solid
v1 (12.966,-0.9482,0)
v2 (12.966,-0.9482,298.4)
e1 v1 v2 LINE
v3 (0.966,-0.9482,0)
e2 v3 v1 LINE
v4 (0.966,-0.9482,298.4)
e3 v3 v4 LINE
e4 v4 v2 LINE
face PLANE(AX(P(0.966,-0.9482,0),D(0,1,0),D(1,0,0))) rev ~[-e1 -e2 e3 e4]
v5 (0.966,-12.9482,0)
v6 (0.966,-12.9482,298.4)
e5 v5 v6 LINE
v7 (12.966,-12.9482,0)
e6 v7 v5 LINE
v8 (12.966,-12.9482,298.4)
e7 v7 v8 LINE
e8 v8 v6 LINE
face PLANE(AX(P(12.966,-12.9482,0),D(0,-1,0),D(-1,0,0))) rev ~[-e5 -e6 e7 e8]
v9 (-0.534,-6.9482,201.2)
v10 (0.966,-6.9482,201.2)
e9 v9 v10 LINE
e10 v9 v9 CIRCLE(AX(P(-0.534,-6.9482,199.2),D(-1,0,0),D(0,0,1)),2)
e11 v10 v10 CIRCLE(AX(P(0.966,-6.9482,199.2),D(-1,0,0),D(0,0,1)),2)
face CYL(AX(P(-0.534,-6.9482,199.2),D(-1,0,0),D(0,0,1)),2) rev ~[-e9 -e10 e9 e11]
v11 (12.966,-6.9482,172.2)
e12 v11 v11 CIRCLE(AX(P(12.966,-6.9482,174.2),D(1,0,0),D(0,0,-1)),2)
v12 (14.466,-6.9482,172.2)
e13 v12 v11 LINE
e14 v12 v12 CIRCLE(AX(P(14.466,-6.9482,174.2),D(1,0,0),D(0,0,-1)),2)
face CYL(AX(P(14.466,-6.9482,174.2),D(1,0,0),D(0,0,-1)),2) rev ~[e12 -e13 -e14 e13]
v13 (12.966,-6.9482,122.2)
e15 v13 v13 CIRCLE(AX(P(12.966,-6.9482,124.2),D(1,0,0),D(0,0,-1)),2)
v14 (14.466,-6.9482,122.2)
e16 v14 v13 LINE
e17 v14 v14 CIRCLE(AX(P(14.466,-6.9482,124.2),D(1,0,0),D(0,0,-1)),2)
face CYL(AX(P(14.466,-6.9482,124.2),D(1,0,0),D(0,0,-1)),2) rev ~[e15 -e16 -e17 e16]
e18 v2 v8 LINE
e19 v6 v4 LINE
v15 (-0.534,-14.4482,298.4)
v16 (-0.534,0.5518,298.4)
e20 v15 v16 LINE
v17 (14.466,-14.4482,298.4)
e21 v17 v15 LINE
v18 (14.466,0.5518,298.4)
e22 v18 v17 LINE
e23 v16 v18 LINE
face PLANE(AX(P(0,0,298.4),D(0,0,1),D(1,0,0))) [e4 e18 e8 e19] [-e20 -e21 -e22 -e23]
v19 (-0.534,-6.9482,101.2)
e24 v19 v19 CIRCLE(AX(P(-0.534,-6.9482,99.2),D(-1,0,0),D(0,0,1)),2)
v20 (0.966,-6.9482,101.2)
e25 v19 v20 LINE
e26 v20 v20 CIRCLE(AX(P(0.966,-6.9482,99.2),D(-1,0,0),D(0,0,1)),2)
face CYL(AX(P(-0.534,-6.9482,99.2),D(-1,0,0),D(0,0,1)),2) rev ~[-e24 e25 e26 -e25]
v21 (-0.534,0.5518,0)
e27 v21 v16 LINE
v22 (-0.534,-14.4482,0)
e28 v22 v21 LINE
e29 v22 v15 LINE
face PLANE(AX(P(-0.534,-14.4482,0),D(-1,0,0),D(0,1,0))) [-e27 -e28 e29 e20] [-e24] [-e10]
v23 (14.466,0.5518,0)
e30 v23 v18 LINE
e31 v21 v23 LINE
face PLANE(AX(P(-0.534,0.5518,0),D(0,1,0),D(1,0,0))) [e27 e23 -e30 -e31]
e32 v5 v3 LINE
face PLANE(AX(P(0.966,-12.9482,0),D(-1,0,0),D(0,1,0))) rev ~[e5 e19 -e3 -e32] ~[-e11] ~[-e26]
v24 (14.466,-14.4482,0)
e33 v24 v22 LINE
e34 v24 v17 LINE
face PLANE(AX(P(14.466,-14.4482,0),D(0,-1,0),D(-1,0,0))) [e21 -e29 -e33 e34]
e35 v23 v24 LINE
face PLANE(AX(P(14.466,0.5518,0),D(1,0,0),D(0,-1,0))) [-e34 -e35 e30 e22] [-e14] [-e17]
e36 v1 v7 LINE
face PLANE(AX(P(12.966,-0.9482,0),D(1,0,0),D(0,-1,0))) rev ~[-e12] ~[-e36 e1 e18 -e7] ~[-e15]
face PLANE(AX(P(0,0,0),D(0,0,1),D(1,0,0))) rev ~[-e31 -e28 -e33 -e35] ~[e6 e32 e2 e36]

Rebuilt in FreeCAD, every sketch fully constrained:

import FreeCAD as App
import Part
import Sketcher
from FreeCAD import Vector


def add_polygon(sketch, points):
    """Adds a closed chain of lines whose ends are joined by coincident constraints."""
    first, n = sketch.GeometryCount, len(points)
    for a, b in zip(points, points[1:] + points[:1]):
        sketch.addGeometry(Part.LineSegment(App.Vector(*a, 0), App.Vector(*b, 0)), False)
    for i in range(n):
        sketch.addConstraint(Sketcher.Constraint("Coincident", first + i, 2, first + (i + 1) % n, 1))

doc = App.newDocument("Part")
body = doc.addObject("PartDesign::Body", "Body")

# Sketch on XY plane
sketch1 = doc.addObject("Sketcher::SketchObject", "Sketch")
body.addObject(sketch1)
sketch1.AttachmentSupport = (doc.XY_Plane, [""])
sketch1.MapMode = "FlatFace"
add_polygon(sketch1, [(14, 1), (-1, 1), (-1, -14), (14, -14)])  # lines 0-3
add_polygon(sketch1, [(1, -13), (1, -1), (13, -1), (13, -13)])  # lines 4-7
sketch1.addConstraint([
    Sketcher.Constraint("Horizontal", 0),
    Sketcher.Constraint("Vertical", 1),
    Sketcher.Constraint("Horizontal", 2),
    Sketcher.Constraint("Vertical", 3),
    Sketcher.Constraint("Vertical", 4),
    Sketcher.Constraint("Horizontal", 5),
    Sketcher.Constraint("Vertical", 6),
    Sketcher.Constraint("Horizontal", 7),
    Sketcher.Constraint("Equal", 2, 1),
    Sketcher.Constraint("Equal", 7, 4),
    Sketcher.Constraint("DistanceX", 0, 2, 0, 1, 15.0),
    Sketcher.Constraint("DistanceX", 0, 2, 4, 2, 1.5),
    Sketcher.Constraint("DistanceY", 4, 2, 0, 2, 1.5),
    Sketcher.Constraint("DistanceX", 5, 2, 3, 2, 1.5),
    Sketcher.Constraint("DistanceX", 0, 2, -1, 1, 0.534),
    Sketcher.Constraint("DistanceY", -1, 1, 0, 2, 0.5518),
])
pad1 = doc.addObject("PartDesign::Pad", "Pad")
body.addObject(pad1)
pad1.Profile = sketch1
pad1.Length = 298.4

# Sketch on YZ plane
sketch2 = doc.addObject("Sketcher::SketchObject", "Sketch001")
body.addObject(sketch2)
sketch2.AttachmentSupport = (doc.YZ_Plane, [""])
sketch2.MapMode = "FlatFace"
sketch2.AttachmentOffset = App.Placement(Vector(0, 0, 14.466), App.Rotation())
sketch2.addGeometry([
    Part.Circle(Vector(-6.9, 174.2, 0), Vector(0, 0, 1), 2),
    Part.Circle(Vector(-6.9, 124.2, 0), Vector(0, 0, 1), 2),
], False)
sketch2.addConstraint([
    Sketcher.Constraint("Equal", 0, 1),
    Sketcher.Constraint("Vertical", 0, 3, 1, 3),
    Sketcher.Constraint("Diameter", 0, 4.0),
    Sketcher.Constraint("DistanceY", 1, 3, 0, 3, 50.0),
    Sketcher.Constraint("DistanceY", -1, 1, 1, 3, 124.2),
    Sketcher.Constraint("DistanceX", 0, 3, -1, 1, 6.9482),
])
pocket1 = doc.addObject("PartDesign::Pocket", "Pocket")
body.addObject(pocket1)
pocket1.Profile = sketch2
pocket1.Length = 10

# Sketch on YZ plane
sketch3 = doc.addObject("Sketcher::SketchObject", "Sketch002")
body.addObject(sketch3)
sketch3.AttachmentSupport = (doc.YZ_Plane, [""])
sketch3.MapMode = "FlatFace"
sketch3.AttachmentOffset = App.Placement(Vector(0, 0, -0.534), App.Rotation())
sketch3.addGeometry([
    Part.Circle(Vector(-6.9, 99.2, 0), Vector(0, 0, 1), 2),
    Part.Circle(Vector(-6.9, 199.2, 0), Vector(0, 0, 1), 2),
], False)
sketch3.addConstraint([
    Sketcher.Constraint("Equal", 0, 1),
    Sketcher.Constraint("Vertical", 0, 3, 1, 3),
    Sketcher.Constraint("Diameter", 0, 4.0),
    Sketcher.Constraint("DistanceY", 0, 3, 1, 3, 100.0),
    Sketcher.Constraint("DistanceY", -1, 1, 0, 3, 99.2),
    Sketcher.Constraint("DistanceX", 0, 3, -1, 1, 6.9482),
])
pocket2 = doc.addObject("PartDesign::Pocket", "Pocket001")
body.addObject(pocket2)
pocket2.Profile = sketch3
pocket2.Length = 10
pocket2.Reversed = True

doc.recompute()
